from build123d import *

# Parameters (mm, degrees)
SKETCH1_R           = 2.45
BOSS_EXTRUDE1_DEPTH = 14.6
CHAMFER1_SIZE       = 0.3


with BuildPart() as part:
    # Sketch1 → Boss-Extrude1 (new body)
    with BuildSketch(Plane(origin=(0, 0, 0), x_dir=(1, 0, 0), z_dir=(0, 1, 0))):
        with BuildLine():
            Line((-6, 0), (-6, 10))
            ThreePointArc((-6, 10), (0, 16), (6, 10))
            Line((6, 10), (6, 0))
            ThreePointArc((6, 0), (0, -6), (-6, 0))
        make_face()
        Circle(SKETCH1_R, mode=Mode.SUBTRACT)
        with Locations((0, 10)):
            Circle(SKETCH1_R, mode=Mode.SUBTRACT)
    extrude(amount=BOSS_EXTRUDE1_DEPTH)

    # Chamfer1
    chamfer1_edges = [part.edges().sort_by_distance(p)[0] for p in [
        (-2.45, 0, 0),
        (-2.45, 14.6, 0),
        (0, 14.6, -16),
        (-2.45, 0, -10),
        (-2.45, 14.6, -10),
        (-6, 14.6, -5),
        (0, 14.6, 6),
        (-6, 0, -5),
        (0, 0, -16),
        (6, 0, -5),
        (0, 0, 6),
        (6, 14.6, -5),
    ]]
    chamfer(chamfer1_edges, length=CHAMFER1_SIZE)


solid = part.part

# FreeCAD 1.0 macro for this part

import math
import FreeCAD as App
import Part
import Sketcher
from FreeCAD import Vector
Q = App.Units.Quantity


def edges_at(feature, points):
    """Names of the edges that pass closest to the given points."""
    edges = feature.Shape.Edges
    near = lambda p: min(range(len(edges)), key=lambda i: edges[i].distToShape(Part.Vertex(*p))[0])
    return sorted({f"Edge{near(p) + 1}" for p in points})

doc = App.newDocument("Part")
body = doc.addObject("PartDesign::Body", "Body")

sketch1 = doc.addObject("Sketcher::SketchObject", "Sketch")
body.addObject(sketch1)
sketch1.AttachmentSupport = (doc.XZ_Plane, [""])
sketch1.MapMode = "FlatFace"
sketch1.addGeometry([
    Part.LineSegment(Vector(-6, -10, 0), Vector(-6, 0, 0)),
    Part.ArcOfCircle(Part.Circle(Vector(0, 0, 0), Vector(0, 0, 1), 6), math.radians(0), math.radians(180)),
    Part.LineSegment(Vector(6, 0, 0), Vector(6, -10, 0)),
    Part.ArcOfCircle(Part.Circle(Vector(0, -10, 0), Vector(0, 0, 1), 6), math.radians(180), math.radians(360)),
    Part.Circle(Vector(0, 0, 0), Vector(0, 0, 1), 2.5),
    Part.Circle(Vector(0, -10, 0), Vector(0, 0, 1), 2.5),
], False)
sketch1.addConstraint([
    Sketcher.Constraint("Tangent", 0, 2, 1, 2),
    Sketcher.Constraint("Tangent", 1, 1, 2, 1),
    Sketcher.Constraint("Tangent", 2, 2, 3, 2),
    Sketcher.Constraint("Tangent", 3, 1, 0, 1),
    Sketcher.Constraint("Vertical", 0),
    Sketcher.Constraint("Vertical", 2),
    Sketcher.Constraint("Coincident", 1, 3, -1, 1),
    Sketcher.Constraint("Coincident", 4, 3, -1, 1),
    Sketcher.Constraint("Coincident", 5, 3, 3, 3),
    Sketcher.Constraint("Equal", 4, 5),
    Sketcher.Constraint("Radius", 1, Q("6 mm")),
    Sketcher.Constraint("Diameter", 4, Q("4.9 mm")),
    Sketcher.Constraint("DistanceY", 0, 1, 0, 2, Q("10 mm")),
])
pad1 = doc.addObject("PartDesign::Pad", "Pad")
body.addObject(pad1)
pad1.Profile = sketch1
pad1.Length = 14.6
pad1.Reversed = True
doc.recompute()

chamfer = doc.addObject("PartDesign::Chamfer", "Chamfer")
body.addObject(chamfer)
chamfer.Base = (pad1, edges_at(pad1, [
    (-2.45, 0, 0),
    (-2.45, 14.6, 0),
    (0, 14.6, -16),
    (-2.45, 0, -10),
    (-2.45, 14.6, -10),
    (-6, 14.6, -5),
    (0, 14.6, 6),
    (-6, 0, -5),
    (0, 0, -16),
    (6, 0, -5),
    (0, 0, 6),
    (6, 14.6, -5),
]))
chamfer.Size = 0.3

doc.recompute()
